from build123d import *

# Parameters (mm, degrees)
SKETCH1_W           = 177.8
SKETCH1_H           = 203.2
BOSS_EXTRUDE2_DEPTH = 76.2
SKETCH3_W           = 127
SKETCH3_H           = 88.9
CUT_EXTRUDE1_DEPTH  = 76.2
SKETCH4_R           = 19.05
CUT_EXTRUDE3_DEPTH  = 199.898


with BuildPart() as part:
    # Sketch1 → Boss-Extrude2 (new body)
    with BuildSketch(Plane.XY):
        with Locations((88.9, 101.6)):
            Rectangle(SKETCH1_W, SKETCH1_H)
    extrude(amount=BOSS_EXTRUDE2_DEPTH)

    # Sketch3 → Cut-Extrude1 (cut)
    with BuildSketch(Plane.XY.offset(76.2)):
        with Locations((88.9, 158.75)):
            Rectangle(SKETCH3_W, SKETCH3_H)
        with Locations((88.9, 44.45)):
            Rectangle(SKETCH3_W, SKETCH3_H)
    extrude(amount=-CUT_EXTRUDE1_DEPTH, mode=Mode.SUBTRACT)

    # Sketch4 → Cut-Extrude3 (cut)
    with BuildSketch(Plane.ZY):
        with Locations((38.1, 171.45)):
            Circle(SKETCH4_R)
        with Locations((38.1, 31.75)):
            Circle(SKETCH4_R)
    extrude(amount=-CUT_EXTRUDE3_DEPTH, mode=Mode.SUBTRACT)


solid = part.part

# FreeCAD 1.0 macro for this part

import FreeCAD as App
import Part
import Sketcher
from FreeCAD import Vector
Q = App.Units.Quantity


def add_polygon(sketch, points):
    """Adds a closed chain of lines whose ends are joined by coincident constraints."""
    first, n = sketch.GeometryCount, len(points)
    for a, b in zip(points, points[1:] + points[:1]):
        sketch.addGeometry(Part.LineSegment(App.Vector(*a, 0), App.Vector(*b, 0)), False)
    for i in range(n):
        sketch.addConstraint(Sketcher.Constraint("Coincident", first + i, 2, first + (i + 1) % n, 1))

doc = App.newDocument("Part")
body = doc.addObject("PartDesign::Body", "Body")

sketch1 = body.newObject("Sketcher::SketchObject", "Sketch")
sketch1.AttachmentSupport = (doc.getObject("XY_Plane"), [""])
sketch1.MapMode = "FlatFace"
add_polygon(sketch1, [(0, 203), (0, 0), (178, 0), (178, 203)])
sketch1.addConstraint([
    Sketcher.Constraint("Vertical", 0),
    Sketcher.Constraint("Horizontal", 1),
    Sketcher.Constraint("Vertical", 2),
    Sketcher.Constraint("Horizontal", 3),
    Sketcher.Constraint("Coincident", 0, 2, -1, 1),
    Sketcher.Constraint("DistanceX", 1, 1, 1, 2, Q("7 in")),
    Sketcher.Constraint("DistanceY", 0, 2, 0, 1, Q("8 in")),
])
pad1 = body.newObject("PartDesign::Pad", "Pad")
pad1.Profile = sketch1
pad1.Length = Q("3 in")

sketch2 = body.newObject("Sketcher::SketchObject", "Sketch001")
sketch2.AttachmentSupport = (doc.getObject("XY_Plane"), [""])
sketch2.MapMode = "FlatFace"
sketch2.AttachmentOffset = App.Placement(Vector(0, 0, 3 * 25.4), App.Rotation())
add_polygon(sketch2, [(25, 203), (25, 114), (152, 114), (152, 203)])
add_polygon(sketch2, [(25, 89), (25, 0), (152, 0), (152, 89)])
sketch2.addConstraint([
    Sketcher.Constraint("Vertical", 0),
    Sketcher.Constraint("Horizontal", 1),
    Sketcher.Constraint("Vertical", 2),
    Sketcher.Constraint("Horizontal", 3),
    Sketcher.Constraint("Vertical", 4),
    Sketcher.Constraint("Horizontal", 5),
    Sketcher.Constraint("Vertical", 6),
    Sketcher.Constraint("Horizontal", 7),
    Sketcher.Constraint("PointOnObject", 4, 2, -1),
    Sketcher.Constraint("Vertical", 3, 2, 4, 2),
    Sketcher.Constraint("Vertical", 2, 2, 5, 2),
    Sketcher.Constraint("Equal", 2, 4),
    Sketcher.Constraint("DistanceX", 1, 1, 1, 2, Q("5 in")),
    Sketcher.Constraint("DistanceY", 0, 2, 0, 1, Q("3.5 in")),
    Sketcher.Constraint("DistanceX", -1, 1, 0, 2, Q("1 in")),
    Sketcher.Constraint("DistanceY", -1, 1, 2, 2, Q("8 in")),
])
pocket1 = body.newObject("PartDesign::Pocket", "Pocket")
pocket1.Profile = sketch2
pocket1.Length = Q("3 in")

sketch3 = body.newObject("Sketcher::SketchObject", "Sketch002")
sketch3.AttachmentSupport = (doc.getObject("YZ_Plane"), [""])
sketch3.MapMode = "FlatFace"
sketch3.addGeometry([
    Part.Circle(Vector(171, 38, 0), Vector(0, 0, 1), 19),
    Part.Circle(Vector(32, 38, 0), Vector(0, 0, 1), 19),
], False)
sketch3.addConstraint([
    Sketcher.Constraint("Equal", 0, 1),
    Sketcher.Constraint("Horizontal", 0, 3, 1, 3),
    Sketcher.Constraint("Diameter", 0, Q("1.5 in")),
    Sketcher.Constraint("DistanceY", -1, 1, 0, 3, Q("1.5 in")),
    Sketcher.Constraint("DistanceX", 1, 3, 0, 3, Q("5.5 in")),
    Sketcher.Constraint("DistanceX", -1, 1, 0, 3, Q("6.75 in")),
])
pocket2 = body.newObject("PartDesign::Pocket", "Pocket001")
pocket2.Profile = sketch3
pocket2.Length = Q("7.87 in")
pocket2.Reversed = True

doc.recompute()
